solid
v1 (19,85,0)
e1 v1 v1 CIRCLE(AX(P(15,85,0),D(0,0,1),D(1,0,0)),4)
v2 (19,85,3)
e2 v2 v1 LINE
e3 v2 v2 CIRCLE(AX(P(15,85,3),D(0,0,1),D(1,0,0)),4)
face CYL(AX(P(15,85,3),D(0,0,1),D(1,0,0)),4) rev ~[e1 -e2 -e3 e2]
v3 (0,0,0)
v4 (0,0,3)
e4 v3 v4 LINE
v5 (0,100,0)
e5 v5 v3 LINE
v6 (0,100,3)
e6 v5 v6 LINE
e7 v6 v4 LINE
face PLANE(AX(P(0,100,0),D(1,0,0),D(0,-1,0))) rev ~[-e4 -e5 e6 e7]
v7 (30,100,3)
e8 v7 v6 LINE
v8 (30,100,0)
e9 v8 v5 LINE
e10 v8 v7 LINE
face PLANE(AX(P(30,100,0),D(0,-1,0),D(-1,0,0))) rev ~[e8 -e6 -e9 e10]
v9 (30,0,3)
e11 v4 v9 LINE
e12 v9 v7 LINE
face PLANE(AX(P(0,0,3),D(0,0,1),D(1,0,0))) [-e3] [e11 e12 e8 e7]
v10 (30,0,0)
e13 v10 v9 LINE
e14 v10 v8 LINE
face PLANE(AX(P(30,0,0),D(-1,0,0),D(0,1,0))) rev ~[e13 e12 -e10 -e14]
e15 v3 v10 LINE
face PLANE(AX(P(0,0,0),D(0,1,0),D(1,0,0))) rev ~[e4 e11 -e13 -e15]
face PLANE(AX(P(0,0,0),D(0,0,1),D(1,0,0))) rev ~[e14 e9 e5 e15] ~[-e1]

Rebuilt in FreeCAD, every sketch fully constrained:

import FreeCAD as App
import Part
import Sketcher

V = App.Vector
Q = App.Units.Quantity


def add_polygon(sketch, points):
    """Adds a closed chain of lines whose ends are joined by coincident constraints."""
    first, n = sketch.GeometryCount, len(points)
    for a, b in zip(points, points[1:] + points[:1]):
        sketch.addGeometry(Part.LineSegment(App.Vector(*a, 0), App.Vector(*b, 0)), False)
    for i in range(n):
        sketch.addConstraint(Sketcher.Constraint("Coincident", first + i, 2, first + (i + 1) % n, 1))

doc = App.newDocument("Part")
body = doc.addObject("PartDesign::Body", "Body")

# Sketch on XY plane
sketch1 = doc.addObject("Sketcher::SketchObject", "Sketch")
body.addObject(sketch1)
sketch1.AttachmentSupport = (doc.XY_Plane, [""])
sketch1.MapMode = "FlatFace"
add_polygon(sketch1, [(0, 100), (0, 0), (30, 0), (30, 100)])  # lines 0-3
sketch1.addConstraint(Sketcher.Constraint("Vertical", 0))
sketch1.addConstraint(Sketcher.Constraint("Horizontal", 1))
sketch1.addConstraint(Sketcher.Constraint("Vertical", 2))
sketch1.addConstraint(Sketcher.Constraint("Horizontal", 3))
sketch1.addConstraint(Sketcher.Constraint("Coincident", 0, 2, -1, 1))
sketch1.addConstraint(Sketcher.Constraint("DistanceX", 1, 1, 1, 2, Q("30 mm")))
sketch1.addConstraint(Sketcher.Constraint("DistanceY", 0, 2, 0, 1, Q("100 mm")))
pad1 = doc.addObject("PartDesign::Pad", "Pad")
body.addObject(pad1)
pad1.Profile = sketch1
pad1.Length = 3

# Sketch on XY plane
sketch2 = doc.addObject("Sketcher::SketchObject", "Sketch001")
body.addObject(sketch2)
sketch2.AttachmentSupport = (doc.XY_Plane, [""])
sketch2.MapMode = "FlatFace"
sketch2.AttachmentOffset = App.Placement(V(0, 0, 3), App.Rotation())
sketch2.addGeometry(Part.Circle(V(15, 85, 0), V(0, 0, 1), 4), False)
sketch2.addConstraint(Sketcher.Constraint("Diameter", 0, Q("8 mm")))
sketch2.addConstraint(Sketcher.Constraint("DistanceX", -1, 1, 0, 3, Q("15 mm")))
sketch2.addConstraint(Sketcher.Constraint("DistanceY", -1, 1, 0, 3, Q("85 mm")))
pocket1 = doc.addObject("PartDesign::Pocket", "Pocket")
body.addObject(pocket1)
pocket1.Profile = sketch2
pocket1.Type = "ThroughAll"

doc.recompute()
